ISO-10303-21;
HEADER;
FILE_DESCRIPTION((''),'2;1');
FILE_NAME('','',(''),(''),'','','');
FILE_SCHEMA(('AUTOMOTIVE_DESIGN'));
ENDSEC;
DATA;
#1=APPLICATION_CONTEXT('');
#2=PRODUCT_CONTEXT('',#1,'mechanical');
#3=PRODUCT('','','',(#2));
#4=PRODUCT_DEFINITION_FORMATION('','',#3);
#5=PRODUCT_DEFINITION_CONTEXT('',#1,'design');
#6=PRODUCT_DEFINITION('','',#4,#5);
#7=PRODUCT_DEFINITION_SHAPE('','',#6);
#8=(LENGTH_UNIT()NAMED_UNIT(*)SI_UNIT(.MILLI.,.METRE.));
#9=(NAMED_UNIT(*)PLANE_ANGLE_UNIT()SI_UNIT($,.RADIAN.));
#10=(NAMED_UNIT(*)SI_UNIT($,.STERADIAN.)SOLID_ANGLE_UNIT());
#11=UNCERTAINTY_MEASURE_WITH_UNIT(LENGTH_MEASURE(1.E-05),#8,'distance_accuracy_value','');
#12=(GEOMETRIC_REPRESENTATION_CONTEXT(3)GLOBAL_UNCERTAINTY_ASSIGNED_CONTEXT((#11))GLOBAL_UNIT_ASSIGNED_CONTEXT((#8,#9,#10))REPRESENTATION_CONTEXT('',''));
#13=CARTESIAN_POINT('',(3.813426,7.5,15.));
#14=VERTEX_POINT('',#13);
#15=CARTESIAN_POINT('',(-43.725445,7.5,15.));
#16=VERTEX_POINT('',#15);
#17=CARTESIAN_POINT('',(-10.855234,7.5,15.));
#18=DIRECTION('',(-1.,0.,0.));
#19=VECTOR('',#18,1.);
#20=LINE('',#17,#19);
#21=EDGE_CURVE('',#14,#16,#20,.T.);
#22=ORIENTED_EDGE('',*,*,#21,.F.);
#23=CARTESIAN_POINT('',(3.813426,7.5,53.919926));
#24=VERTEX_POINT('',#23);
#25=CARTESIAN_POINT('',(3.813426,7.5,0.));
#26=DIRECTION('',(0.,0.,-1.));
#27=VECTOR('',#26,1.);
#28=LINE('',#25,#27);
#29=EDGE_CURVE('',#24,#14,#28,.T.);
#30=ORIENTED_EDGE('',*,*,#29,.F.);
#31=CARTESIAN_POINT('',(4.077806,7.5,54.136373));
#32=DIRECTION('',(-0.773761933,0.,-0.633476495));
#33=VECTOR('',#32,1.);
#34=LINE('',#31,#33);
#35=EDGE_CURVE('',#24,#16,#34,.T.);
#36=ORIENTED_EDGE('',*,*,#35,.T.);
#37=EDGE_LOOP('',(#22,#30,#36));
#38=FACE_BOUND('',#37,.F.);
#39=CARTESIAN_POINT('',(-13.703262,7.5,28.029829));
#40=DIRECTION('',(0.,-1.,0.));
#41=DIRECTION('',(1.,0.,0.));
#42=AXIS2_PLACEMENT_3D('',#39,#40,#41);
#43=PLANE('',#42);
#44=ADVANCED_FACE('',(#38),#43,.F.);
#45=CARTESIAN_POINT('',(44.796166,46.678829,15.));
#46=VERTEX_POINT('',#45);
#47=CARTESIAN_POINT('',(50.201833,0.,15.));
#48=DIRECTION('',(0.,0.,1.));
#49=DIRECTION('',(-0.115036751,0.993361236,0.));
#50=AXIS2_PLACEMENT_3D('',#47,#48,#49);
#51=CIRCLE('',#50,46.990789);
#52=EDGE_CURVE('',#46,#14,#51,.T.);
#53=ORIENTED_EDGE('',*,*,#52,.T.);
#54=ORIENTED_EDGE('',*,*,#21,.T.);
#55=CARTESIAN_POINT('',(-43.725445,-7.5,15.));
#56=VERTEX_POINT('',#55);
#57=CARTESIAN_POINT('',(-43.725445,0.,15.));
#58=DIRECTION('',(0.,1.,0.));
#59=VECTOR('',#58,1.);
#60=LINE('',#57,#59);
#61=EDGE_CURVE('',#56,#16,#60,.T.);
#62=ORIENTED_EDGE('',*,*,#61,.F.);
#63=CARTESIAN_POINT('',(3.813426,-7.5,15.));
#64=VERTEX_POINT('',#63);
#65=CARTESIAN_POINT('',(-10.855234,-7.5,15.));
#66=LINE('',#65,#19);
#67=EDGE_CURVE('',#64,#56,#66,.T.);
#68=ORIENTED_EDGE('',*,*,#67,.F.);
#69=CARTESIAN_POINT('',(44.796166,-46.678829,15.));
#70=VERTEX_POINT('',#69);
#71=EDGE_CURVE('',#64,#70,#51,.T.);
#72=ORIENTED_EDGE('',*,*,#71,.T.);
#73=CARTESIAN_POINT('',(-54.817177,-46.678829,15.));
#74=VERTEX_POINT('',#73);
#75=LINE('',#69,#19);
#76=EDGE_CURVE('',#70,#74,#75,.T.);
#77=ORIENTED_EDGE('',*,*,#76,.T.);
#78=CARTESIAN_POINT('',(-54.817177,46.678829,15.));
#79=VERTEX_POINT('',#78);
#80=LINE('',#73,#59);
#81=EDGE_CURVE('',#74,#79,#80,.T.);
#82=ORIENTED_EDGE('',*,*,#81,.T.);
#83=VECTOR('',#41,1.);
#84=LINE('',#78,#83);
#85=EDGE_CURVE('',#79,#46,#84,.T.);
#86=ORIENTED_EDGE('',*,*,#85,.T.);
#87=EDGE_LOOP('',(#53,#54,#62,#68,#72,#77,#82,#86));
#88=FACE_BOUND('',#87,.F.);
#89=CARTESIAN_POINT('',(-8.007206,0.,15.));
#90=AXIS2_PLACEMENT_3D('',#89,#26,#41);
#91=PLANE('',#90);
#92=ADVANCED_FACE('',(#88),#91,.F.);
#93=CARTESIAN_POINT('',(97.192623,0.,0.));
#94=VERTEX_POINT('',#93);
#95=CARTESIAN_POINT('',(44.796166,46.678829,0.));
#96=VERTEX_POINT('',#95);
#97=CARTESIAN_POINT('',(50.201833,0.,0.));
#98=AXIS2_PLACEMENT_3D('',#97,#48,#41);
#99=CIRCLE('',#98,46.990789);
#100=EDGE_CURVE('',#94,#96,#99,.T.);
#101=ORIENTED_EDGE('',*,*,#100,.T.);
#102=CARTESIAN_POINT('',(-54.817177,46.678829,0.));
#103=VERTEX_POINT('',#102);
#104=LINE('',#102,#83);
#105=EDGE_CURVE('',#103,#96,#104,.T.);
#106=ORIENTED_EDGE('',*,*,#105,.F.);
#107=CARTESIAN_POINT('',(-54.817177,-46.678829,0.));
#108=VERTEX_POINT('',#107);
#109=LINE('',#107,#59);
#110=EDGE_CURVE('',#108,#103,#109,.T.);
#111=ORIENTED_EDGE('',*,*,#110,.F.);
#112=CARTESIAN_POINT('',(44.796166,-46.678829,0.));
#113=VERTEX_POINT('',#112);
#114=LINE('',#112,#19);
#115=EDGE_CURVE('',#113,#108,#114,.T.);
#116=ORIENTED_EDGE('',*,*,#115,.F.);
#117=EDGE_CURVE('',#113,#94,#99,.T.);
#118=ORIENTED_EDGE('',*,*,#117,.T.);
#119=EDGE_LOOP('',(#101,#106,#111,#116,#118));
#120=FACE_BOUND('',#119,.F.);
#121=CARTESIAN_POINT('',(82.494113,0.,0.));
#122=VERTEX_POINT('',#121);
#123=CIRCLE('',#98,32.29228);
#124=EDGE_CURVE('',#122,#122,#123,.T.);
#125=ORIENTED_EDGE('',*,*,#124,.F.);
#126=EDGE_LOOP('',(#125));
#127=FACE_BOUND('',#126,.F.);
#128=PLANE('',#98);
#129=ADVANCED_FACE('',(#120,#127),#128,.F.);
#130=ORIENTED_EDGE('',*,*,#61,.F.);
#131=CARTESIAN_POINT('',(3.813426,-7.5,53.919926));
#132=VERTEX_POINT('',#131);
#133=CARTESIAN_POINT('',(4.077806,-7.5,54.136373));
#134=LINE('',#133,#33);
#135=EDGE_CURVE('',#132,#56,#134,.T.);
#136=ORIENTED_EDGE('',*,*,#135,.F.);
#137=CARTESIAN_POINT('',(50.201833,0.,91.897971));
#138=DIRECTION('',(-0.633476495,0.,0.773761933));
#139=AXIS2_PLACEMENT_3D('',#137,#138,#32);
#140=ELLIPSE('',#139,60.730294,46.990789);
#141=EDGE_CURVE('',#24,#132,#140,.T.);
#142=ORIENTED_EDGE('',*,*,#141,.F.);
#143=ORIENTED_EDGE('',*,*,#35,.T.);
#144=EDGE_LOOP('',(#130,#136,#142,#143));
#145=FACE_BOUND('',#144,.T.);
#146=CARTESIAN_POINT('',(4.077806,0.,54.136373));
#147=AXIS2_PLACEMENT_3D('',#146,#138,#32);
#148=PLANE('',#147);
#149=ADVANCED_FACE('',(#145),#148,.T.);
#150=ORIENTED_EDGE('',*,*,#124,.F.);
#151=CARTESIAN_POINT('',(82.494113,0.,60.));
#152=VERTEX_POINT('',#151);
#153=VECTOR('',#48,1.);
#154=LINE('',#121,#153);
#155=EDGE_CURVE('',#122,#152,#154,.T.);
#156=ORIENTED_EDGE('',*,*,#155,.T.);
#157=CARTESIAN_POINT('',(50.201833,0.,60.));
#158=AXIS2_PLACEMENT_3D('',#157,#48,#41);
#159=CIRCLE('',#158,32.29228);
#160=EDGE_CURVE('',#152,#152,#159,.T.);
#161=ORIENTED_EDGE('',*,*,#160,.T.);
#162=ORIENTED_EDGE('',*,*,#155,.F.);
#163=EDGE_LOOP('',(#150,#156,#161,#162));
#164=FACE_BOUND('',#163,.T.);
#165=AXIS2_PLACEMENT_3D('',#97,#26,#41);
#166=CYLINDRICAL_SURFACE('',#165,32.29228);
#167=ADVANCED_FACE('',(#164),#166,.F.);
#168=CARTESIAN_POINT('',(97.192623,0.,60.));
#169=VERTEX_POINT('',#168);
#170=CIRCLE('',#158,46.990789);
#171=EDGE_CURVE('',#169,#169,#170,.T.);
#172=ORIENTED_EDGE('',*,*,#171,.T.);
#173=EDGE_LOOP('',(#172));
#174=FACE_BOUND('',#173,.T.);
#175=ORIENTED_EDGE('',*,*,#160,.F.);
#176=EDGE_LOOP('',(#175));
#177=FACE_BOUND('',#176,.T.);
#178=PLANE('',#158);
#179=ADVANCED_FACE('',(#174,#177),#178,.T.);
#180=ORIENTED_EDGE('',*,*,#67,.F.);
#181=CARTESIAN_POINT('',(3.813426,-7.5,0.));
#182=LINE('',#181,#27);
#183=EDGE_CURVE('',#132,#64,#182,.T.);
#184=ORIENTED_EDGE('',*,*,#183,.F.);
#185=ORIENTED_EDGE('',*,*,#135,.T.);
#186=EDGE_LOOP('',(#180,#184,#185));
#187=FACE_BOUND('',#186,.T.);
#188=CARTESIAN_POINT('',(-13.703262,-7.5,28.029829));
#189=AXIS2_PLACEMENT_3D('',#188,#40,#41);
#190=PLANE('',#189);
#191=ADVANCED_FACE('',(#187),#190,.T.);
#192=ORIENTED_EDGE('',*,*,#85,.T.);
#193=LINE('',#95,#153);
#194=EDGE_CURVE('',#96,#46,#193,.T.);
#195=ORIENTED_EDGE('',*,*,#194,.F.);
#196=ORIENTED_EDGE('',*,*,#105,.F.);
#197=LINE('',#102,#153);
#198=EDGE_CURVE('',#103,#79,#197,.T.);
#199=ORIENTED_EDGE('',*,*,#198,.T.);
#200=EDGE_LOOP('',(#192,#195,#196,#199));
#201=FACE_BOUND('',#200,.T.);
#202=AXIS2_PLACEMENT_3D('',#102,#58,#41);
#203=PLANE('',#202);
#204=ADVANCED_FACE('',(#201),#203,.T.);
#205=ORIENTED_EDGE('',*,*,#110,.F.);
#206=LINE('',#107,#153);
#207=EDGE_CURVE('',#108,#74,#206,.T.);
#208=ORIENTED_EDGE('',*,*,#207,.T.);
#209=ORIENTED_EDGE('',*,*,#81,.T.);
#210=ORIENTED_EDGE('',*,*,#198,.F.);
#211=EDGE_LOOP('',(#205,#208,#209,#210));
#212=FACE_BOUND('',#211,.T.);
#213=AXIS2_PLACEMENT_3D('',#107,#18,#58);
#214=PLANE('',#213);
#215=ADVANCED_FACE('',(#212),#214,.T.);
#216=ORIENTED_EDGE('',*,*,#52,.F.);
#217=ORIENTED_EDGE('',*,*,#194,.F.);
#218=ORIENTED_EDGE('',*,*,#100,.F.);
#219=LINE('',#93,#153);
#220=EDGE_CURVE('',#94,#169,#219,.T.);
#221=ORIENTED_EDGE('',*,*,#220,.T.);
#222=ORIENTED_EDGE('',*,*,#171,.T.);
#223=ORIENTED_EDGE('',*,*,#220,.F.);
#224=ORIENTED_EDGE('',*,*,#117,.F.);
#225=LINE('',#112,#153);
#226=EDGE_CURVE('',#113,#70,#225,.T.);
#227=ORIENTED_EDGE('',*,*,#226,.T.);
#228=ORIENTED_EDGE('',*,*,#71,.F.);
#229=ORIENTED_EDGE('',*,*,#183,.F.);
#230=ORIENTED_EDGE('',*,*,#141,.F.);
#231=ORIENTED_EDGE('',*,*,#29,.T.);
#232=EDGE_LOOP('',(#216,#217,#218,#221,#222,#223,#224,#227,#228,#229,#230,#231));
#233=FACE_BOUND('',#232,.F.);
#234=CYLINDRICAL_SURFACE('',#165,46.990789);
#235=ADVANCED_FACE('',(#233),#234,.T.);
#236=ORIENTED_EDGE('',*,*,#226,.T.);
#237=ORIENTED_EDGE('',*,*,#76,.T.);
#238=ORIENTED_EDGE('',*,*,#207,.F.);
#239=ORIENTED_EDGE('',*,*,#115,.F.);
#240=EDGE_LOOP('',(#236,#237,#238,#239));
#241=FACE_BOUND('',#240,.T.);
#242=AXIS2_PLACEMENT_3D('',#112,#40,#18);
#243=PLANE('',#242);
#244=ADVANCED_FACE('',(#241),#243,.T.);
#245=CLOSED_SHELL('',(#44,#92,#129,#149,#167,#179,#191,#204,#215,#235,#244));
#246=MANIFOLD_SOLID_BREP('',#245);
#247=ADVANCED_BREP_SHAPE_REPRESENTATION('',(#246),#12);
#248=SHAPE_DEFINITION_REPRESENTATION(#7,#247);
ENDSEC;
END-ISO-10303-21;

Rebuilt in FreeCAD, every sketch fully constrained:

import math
import FreeCAD as App
import Part
import Sketcher

V = App.Vector
Q = App.Units.Quantity


def add_polygon(sketch, points):
    """Adds a closed chain of lines whose ends are joined by coincident constraints."""
    first, n = sketch.GeometryCount, len(points)
    for a, b in zip(points, points[1:] + points[:1]):
        sketch.addGeometry(Part.LineSegment(App.Vector(*a, 0), App.Vector(*b, 0)), False)
    for i in range(n):
        sketch.addConstraint(Sketcher.Constraint("Coincident", first + i, 2, first + (i + 1) % n, 1))

doc = App.newDocument("Part")
body = doc.addObject("PartDesign::Body", "Body")

# Sketch on XY plane
sketch1 = doc.addObject("Sketcher::SketchObject", "Sketch")
body.addObject(sketch1)
sketch1.AttachmentSupport = (doc.XY_Plane, [""])
sketch1.MapMode = "FlatFace"
sketch1.addGeometry(Part.Circle(V(50, 0, 0), V(0, 0, 1), 47), False)
sketch1.addGeometry(Part.Circle(V(50, 0, 0), V(0, 0, 1), 32), False)
sketch1.addConstraint(Sketcher.Constraint("Coincident", 1, 3, 0, 3))
sketch1.addConstraint(Sketcher.Constraint("PointOnObject", 0, 3, -1))
sketch1.addConstraint(Sketcher.Constraint("Diameter", 0, Q("93.981579 mm")))
sketch1.addConstraint(Sketcher.Constraint("Diameter", 1, Q("64.584559 mm")))
sketch1.addConstraint(Sketcher.Constraint("DistanceX", -1, 1, 0, 3, Q("50.201833 mm")))
pad1 = doc.addObject("PartDesign::Pad", "Pad")
body.addObject(pad1)
pad1.Profile = sketch1
pad1.Length = 60

# Sketch on XY plane
sketch2 = doc.addObject("Sketcher::SketchObject", "Sketch001")
body.addObject(sketch2)
sketch2.AttachmentSupport = (doc.XY_Plane, [""])
sketch2.MapMode = "FlatFace"
sketch2.addGeometry(Part.ArcOfCircle(Part.Circle(V(50, 0, 0), V(0, 0, 1), 47), math.radians(97), math.radians(263)), False)
sketch2.addGeometry(Part.LineSegment(V(45, -47, 0), V(-55, -47, 0)), False)
sketch2.addGeometry(Part.LineSegment(V(-55, -47, 0), V(-55, 47, 0)), False)
sketch2.addGeometry(Part.LineSegment(V(-55, 47, 0), V(45, 47, 0)), False)
sketch2.addConstraint(Sketcher.Constraint("Coincident", 0, 2, 1, 1))
sketch2.addConstraint(Sketcher.Constraint("Coincident", 1, 2, 2, 1))
sketch2.addConstraint(Sketcher.Constraint("Coincident", 2, 2, 3, 1))
sketch2.addConstraint(Sketcher.Constraint("Coincident", 3, 2, 0, 1))
sketch2.addConstraint(Sketcher.Constraint("Horizontal", 1))
sketch2.addConstraint(Sketcher.Constraint("Vertical", 2))
sketch2.addConstraint(Sketcher.Constraint("Horizontal", 3))
sketch2.addConstraint(Sketcher.Constraint("Symmetric", 0, 2, 3, 2, -1))
sketch2.addConstraint(Sketcher.Constraint("Radius", 0, Q("46.990789 mm")))
sketch2.addConstraint(Sketcher.Constraint("DistanceX", 1, 2, 1, 1, Q("99.613343 mm")))
sketch2.addConstraint(Sketcher.Constraint("DistanceY", 2, 1, 2, 2, Q("93.357657 mm")))
sketch2.addConstraint(Sketcher.Constraint("DistanceX", -1, 1, 0, 3, Q("50.201833 mm")))
pad2 = doc.addObject("PartDesign::Pad", "Pad001")
body.addObject(pad2)
pad2.Profile = sketch2
pad2.Length = 15

# Sketch on XZ plane
sketch3 = doc.addObject("Sketcher::SketchObject", "Sketch002")
body.addObject(sketch3)
sketch3.AttachmentSupport = (doc.XZ_Plane, [""])
sketch3.MapMode = "FlatFace"
add_polygon(sketch3, [(4, 54), (-44, 15), (4, 15)])  # lines 0-2
sketch3.addConstraint(Sketcher.Constraint("Horizontal", 1))
sketch3.addConstraint(Sketcher.Constraint("Vertical", 2))
sketch3.addConstraint(Sketcher.Constraint("DistanceX", 1, 1, 1, 2, Q("48.262701 mm")))
sketch3.addConstraint(Sketcher.Constraint("DistanceY", 2, 1, 2, 2, Q("39.512523 mm")))
sketch3.addConstraint(Sketcher.Constraint("DistanceY", -1, 1, 0, 2, Q("14.62385 mm")))
sketch3.addConstraint(Sketcher.Constraint("DistanceX", 0, 2, -1, 1, Q("44.184895 mm")))
pad3 = doc.addObject("PartDesign::Pad", "Pad002")
body.addObject(pad3)
pad3.Profile = sketch3
pad3.Length = 15
pad3.Midplane = True

doc.recompute()
